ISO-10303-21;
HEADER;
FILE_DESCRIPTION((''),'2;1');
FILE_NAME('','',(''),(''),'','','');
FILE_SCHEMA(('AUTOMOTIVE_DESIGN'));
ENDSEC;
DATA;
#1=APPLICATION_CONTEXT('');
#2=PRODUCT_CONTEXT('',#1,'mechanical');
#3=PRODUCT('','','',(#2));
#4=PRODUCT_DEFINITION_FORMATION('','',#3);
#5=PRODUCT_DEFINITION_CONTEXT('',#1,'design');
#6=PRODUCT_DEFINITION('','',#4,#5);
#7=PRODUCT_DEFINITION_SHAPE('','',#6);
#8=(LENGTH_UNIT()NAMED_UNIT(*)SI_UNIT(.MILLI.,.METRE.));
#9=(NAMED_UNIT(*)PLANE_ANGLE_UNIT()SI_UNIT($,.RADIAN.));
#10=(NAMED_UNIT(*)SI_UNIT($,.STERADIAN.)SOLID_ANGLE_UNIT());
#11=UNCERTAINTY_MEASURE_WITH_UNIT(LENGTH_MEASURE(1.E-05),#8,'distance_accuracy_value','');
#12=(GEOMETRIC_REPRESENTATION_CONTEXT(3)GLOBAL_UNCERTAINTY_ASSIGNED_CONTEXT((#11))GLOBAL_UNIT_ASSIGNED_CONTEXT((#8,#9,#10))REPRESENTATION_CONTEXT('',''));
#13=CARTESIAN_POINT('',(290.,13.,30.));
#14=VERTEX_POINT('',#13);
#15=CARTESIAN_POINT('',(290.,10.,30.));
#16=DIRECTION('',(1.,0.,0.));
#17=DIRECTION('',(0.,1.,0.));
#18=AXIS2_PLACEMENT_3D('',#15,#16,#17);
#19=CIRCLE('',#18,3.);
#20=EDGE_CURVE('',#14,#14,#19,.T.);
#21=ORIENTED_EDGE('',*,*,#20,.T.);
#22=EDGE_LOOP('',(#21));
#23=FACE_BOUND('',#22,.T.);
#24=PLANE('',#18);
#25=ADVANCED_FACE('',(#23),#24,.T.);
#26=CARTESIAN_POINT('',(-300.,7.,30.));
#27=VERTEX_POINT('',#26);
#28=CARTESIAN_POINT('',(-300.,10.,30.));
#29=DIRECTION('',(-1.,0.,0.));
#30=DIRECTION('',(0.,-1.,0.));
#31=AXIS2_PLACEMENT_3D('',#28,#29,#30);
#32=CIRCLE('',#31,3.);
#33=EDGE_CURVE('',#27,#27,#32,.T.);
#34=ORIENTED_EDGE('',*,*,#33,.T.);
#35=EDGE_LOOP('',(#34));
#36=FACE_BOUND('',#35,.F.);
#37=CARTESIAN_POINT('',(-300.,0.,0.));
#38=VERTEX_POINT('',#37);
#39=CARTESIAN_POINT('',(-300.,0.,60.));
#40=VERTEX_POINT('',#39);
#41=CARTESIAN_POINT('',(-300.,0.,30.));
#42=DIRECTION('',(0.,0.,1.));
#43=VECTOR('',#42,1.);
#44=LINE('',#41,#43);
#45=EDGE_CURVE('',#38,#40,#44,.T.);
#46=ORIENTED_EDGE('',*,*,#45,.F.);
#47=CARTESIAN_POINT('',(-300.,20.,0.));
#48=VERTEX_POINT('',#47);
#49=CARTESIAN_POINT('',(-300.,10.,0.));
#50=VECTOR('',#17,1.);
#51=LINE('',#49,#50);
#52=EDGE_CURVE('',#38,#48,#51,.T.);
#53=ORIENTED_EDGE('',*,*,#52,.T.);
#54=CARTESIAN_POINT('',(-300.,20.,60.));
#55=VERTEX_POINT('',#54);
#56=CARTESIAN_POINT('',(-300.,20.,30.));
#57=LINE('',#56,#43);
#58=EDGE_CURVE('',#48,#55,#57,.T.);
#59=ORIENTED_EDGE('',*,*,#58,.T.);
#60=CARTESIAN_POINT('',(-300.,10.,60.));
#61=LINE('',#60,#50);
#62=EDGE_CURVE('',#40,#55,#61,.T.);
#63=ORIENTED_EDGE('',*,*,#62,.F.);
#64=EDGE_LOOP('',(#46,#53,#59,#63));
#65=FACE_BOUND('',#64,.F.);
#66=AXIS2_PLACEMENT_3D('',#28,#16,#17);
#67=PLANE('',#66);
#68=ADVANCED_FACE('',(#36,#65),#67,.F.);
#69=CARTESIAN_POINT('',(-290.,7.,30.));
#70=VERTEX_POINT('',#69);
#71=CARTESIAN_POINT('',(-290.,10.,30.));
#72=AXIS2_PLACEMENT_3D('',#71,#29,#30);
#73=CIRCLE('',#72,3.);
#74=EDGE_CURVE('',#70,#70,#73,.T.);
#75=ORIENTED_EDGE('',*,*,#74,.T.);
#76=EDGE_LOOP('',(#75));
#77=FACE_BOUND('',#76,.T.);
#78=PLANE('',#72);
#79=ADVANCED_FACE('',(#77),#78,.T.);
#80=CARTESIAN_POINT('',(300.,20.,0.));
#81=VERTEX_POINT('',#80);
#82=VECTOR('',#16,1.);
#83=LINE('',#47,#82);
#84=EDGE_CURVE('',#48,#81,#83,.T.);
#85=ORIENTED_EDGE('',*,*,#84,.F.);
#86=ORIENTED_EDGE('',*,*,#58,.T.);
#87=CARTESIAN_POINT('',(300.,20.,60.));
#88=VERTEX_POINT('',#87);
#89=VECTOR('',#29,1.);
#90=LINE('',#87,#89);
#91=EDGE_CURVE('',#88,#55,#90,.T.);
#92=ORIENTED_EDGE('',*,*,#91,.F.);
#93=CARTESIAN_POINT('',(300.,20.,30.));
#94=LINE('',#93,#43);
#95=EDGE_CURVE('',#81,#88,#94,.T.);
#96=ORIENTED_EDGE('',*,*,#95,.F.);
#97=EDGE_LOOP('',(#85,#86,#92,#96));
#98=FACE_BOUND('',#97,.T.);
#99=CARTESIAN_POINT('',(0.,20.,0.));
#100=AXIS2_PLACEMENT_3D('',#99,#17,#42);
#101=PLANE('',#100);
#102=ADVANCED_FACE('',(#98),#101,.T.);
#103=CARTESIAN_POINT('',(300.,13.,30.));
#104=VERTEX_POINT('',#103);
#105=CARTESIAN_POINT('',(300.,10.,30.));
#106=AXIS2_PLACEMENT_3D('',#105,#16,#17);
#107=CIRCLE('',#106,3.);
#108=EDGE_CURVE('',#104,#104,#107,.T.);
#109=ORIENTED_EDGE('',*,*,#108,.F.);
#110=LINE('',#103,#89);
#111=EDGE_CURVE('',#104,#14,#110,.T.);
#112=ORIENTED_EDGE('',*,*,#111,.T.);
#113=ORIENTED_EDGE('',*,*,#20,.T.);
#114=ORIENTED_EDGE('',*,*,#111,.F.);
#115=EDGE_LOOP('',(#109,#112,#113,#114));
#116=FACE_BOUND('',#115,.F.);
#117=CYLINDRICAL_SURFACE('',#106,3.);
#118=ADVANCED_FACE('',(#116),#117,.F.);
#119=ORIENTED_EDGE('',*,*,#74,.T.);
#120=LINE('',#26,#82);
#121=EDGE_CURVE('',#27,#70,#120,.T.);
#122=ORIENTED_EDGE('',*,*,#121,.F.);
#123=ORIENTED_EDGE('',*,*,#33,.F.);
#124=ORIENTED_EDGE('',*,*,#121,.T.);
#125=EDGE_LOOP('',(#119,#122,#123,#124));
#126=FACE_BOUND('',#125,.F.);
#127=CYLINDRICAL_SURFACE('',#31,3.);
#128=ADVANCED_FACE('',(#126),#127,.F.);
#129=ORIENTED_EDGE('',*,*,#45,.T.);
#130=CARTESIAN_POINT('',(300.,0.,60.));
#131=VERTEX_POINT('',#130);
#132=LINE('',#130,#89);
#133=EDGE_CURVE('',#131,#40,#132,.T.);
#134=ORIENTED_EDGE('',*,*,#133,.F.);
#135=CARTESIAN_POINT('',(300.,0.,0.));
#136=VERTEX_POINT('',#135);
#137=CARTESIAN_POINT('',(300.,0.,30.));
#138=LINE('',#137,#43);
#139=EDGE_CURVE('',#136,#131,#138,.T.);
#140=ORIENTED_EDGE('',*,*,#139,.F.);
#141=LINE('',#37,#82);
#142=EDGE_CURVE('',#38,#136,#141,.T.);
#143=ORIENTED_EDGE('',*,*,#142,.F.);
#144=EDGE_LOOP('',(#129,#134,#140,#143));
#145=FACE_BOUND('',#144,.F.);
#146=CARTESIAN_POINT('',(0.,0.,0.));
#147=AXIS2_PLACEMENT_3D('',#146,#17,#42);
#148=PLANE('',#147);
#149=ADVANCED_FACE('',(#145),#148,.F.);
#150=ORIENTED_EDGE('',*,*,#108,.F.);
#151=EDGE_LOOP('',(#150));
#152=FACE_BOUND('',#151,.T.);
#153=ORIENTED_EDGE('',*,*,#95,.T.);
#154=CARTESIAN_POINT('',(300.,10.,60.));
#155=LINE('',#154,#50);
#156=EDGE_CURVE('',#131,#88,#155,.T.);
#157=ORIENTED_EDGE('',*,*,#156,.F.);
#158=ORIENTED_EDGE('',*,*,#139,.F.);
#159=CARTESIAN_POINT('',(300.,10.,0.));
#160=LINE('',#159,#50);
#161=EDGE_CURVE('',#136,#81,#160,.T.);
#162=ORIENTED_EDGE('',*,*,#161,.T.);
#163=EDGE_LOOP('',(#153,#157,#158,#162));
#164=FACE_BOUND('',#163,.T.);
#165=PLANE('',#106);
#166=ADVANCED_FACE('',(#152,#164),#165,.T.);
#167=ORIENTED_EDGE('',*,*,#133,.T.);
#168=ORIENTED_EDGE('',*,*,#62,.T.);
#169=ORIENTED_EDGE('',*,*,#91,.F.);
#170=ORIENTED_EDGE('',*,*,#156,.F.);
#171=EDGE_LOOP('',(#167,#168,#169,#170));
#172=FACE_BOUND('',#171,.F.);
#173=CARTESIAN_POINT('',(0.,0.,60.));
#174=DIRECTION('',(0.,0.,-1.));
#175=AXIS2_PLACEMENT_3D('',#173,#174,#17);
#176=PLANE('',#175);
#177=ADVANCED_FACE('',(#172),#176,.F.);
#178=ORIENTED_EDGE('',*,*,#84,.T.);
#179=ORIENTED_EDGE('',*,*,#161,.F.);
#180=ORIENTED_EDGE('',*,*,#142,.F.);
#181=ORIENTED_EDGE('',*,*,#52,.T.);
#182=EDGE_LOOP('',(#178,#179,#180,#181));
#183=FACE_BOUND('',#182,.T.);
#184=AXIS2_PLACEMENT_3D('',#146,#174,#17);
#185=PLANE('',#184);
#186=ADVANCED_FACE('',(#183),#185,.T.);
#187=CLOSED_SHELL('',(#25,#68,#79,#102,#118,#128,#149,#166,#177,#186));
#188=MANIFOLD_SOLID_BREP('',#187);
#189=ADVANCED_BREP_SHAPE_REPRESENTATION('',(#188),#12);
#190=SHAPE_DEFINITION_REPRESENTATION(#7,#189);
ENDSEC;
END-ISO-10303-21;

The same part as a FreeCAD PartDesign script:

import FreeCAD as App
import Part
import Sketcher
from FreeCAD import Vector


def add_polygon(sketch, points):
    """Adds a closed chain of lines whose ends are joined by coincident constraints."""
    first, n = sketch.GeometryCount, len(points)
    for a, b in zip(points, points[1:] + points[:1]):
        sketch.addGeometry(Part.LineSegment(App.Vector(*a, 0), App.Vector(*b, 0)), False)
    for i in range(n):
        sketch.addConstraint(Sketcher.Constraint("Coincident", first + i, 2, first + (i + 1) % n, 1))

doc = App.newDocument("Part")
params = doc.addObject("Spreadsheet::Sheet", "Params")
for row, (alias, value) in enumerate([
    ("sketch1_width", "20 mm"),
    ("sketch1_height", "60 mm"),
    ("pad1_length", "300 mm"),
    ("pad1_length2", "300 mm"),
    ("sketch2_diameter", "6 mm"),
    ("pocket1_length", "10 mm"),
    ("sketch3_diameter", "6 mm"),
    ("pocket2_length", "10 mm"),
], start=1):
    params.set(f"A{row}", alias)
    params.set(f"B{row}", "=" + value)
    params.setAlias(f"B{row}", alias)

body = doc.addObject("PartDesign::Body", "Body")

# Sketch on YZ plane
sketch1 = body.newObject("Sketcher::SketchObject", "Sketch")
sketch1.AttachmentSupport = (doc.getObject("YZ_Plane"), [""])
sketch1.MapMode = "FlatFace"
add_polygon(sketch1, [(0, 60), (0, 0), (20, 0), (20, 60)])  # lines 0-3
sketch1.addConstraint([
    Sketcher.Constraint("Vertical", 0),
    Sketcher.Constraint("Horizontal", 1),
    Sketcher.Constraint("Vertical", 2),
    Sketcher.Constraint("Horizontal", 3),
    Sketcher.Constraint("Coincident", 0, 2, -1, 1),
    Sketcher.Constraint("DistanceX", 1, 1, 1, 2, 20.0),
    Sketcher.Constraint("DistanceY", 0, 2, 0, 1, 60.0),
])
sketch1.setExpression("Constraints[9]", "Params.sketch1_width")
sketch1.setExpression("Constraints[10]", "Params.sketch1_height")
pad1 = body.newObject("PartDesign::Pad", "Pad")
pad1.Profile = sketch1
pad1.Type = "TwoLengths"
pad1.setExpression("Length", "Params.pad1_length")
pad1.setExpression("Length2", "Params.pad1_length2")

# Sketch on YZ plane
sketch2 = body.newObject("Sketcher::SketchObject", "Sketch001")
sketch2.AttachmentSupport = (doc.getObject("YZ_Plane"), [""])
sketch2.MapMode = "FlatFace"
sketch2.AttachmentOffset = App.Placement(Vector(0, 0, 300), App.Rotation())
sketch2.addGeometry(Part.Circle(Vector(10, 30, 0), Vector(0, 0, 1), 3), False)
sketch2.addConstraint([
    Sketcher.Constraint("Diameter", 0, 6.0),
    Sketcher.Constraint("DistanceX", -1, 1, 0, 3, 10.0),
    Sketcher.Constraint("DistanceY", -1, 1, 0, 3, 30.0),
])
sketch2.setExpression("Constraints[0]", "Params.sketch2_diameter")
pocket1 = body.newObject("PartDesign::Pocket", "Pocket")
pocket1.Profile = sketch2
pocket1.setExpression("Length", "Params.pocket1_length")

# Sketch on YZ plane
sketch3 = body.newObject("Sketcher::SketchObject", "Sketch002")
sketch3.AttachmentSupport = (doc.getObject("YZ_Plane"), [""])
sketch3.MapMode = "FlatFace"
sketch3.AttachmentOffset = App.Placement(Vector(0, 0, -300), App.Rotation())
sketch3.addGeometry(Part.Circle(Vector(10, 30, 0), Vector(0, 0, 1), 3), False)
sketch3.addConstraint([
    Sketcher.Constraint("Diameter", 0, 6.0),
    Sketcher.Constraint("DistanceX", -1, 1, 0, 3, 10.0),
    Sketcher.Constraint("DistanceY", -1, 1, 0, 3, 30.0),
])
sketch3.setExpression("Constraints[0]", "Params.sketch3_diameter")
pocket2 = body.newObject("PartDesign::Pocket", "Pocket001")
pocket2.Profile = sketch3
pocket2.setExpression("Length", "Params.pocket2_length")
pocket2.Reversed = True

doc.recompute()
